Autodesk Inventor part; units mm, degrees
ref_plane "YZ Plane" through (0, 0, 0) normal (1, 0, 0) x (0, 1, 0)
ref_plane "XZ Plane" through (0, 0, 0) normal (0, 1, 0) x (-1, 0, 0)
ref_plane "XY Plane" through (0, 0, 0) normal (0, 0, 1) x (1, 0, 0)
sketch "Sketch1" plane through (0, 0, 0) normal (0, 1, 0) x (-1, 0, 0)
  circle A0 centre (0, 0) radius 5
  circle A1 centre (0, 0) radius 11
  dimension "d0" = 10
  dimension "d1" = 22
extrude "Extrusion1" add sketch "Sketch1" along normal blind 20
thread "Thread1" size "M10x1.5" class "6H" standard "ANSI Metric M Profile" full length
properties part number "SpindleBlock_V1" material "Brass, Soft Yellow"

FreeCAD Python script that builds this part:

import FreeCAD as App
import Part
import Sketcher
from FreeCAD import Vector
Q = App.Units.Quantity

doc = App.newDocument("Part")
body = doc.addObject("PartDesign::Body", "Body")

# Sketch on XZ plane
sketch1 = doc.addObject("Sketcher::SketchObject", "Sketch")
body.addObject(sketch1)
sketch1.AttachmentSupport = (doc.XZ_Plane, [""])
sketch1.MapMode = "FlatFace"
sketch1.addGeometry([
    Part.Circle(Vector(0, 0, 0), Vector(0, 0, 1), 11),
    Part.Circle(Vector(0, 0, 0), Vector(0, 0, 1), 5),
], False)
sketch1.addConstraint([
    Sketcher.Constraint("Coincident", 0, 3, -1, 1),
    Sketcher.Constraint("Coincident", 1, 3, -1, 1),
    Sketcher.Constraint("Diameter", 0, Q("22 mm")),
    Sketcher.Constraint("Diameter", 1, Q("10 mm")),
])
pad1 = doc.addObject("PartDesign::Pad", "Pad")
body.addObject(pad1)
pad1.Profile = sketch1
pad1.Length = 20
pad1.Reversed = True

doc.recompute()
